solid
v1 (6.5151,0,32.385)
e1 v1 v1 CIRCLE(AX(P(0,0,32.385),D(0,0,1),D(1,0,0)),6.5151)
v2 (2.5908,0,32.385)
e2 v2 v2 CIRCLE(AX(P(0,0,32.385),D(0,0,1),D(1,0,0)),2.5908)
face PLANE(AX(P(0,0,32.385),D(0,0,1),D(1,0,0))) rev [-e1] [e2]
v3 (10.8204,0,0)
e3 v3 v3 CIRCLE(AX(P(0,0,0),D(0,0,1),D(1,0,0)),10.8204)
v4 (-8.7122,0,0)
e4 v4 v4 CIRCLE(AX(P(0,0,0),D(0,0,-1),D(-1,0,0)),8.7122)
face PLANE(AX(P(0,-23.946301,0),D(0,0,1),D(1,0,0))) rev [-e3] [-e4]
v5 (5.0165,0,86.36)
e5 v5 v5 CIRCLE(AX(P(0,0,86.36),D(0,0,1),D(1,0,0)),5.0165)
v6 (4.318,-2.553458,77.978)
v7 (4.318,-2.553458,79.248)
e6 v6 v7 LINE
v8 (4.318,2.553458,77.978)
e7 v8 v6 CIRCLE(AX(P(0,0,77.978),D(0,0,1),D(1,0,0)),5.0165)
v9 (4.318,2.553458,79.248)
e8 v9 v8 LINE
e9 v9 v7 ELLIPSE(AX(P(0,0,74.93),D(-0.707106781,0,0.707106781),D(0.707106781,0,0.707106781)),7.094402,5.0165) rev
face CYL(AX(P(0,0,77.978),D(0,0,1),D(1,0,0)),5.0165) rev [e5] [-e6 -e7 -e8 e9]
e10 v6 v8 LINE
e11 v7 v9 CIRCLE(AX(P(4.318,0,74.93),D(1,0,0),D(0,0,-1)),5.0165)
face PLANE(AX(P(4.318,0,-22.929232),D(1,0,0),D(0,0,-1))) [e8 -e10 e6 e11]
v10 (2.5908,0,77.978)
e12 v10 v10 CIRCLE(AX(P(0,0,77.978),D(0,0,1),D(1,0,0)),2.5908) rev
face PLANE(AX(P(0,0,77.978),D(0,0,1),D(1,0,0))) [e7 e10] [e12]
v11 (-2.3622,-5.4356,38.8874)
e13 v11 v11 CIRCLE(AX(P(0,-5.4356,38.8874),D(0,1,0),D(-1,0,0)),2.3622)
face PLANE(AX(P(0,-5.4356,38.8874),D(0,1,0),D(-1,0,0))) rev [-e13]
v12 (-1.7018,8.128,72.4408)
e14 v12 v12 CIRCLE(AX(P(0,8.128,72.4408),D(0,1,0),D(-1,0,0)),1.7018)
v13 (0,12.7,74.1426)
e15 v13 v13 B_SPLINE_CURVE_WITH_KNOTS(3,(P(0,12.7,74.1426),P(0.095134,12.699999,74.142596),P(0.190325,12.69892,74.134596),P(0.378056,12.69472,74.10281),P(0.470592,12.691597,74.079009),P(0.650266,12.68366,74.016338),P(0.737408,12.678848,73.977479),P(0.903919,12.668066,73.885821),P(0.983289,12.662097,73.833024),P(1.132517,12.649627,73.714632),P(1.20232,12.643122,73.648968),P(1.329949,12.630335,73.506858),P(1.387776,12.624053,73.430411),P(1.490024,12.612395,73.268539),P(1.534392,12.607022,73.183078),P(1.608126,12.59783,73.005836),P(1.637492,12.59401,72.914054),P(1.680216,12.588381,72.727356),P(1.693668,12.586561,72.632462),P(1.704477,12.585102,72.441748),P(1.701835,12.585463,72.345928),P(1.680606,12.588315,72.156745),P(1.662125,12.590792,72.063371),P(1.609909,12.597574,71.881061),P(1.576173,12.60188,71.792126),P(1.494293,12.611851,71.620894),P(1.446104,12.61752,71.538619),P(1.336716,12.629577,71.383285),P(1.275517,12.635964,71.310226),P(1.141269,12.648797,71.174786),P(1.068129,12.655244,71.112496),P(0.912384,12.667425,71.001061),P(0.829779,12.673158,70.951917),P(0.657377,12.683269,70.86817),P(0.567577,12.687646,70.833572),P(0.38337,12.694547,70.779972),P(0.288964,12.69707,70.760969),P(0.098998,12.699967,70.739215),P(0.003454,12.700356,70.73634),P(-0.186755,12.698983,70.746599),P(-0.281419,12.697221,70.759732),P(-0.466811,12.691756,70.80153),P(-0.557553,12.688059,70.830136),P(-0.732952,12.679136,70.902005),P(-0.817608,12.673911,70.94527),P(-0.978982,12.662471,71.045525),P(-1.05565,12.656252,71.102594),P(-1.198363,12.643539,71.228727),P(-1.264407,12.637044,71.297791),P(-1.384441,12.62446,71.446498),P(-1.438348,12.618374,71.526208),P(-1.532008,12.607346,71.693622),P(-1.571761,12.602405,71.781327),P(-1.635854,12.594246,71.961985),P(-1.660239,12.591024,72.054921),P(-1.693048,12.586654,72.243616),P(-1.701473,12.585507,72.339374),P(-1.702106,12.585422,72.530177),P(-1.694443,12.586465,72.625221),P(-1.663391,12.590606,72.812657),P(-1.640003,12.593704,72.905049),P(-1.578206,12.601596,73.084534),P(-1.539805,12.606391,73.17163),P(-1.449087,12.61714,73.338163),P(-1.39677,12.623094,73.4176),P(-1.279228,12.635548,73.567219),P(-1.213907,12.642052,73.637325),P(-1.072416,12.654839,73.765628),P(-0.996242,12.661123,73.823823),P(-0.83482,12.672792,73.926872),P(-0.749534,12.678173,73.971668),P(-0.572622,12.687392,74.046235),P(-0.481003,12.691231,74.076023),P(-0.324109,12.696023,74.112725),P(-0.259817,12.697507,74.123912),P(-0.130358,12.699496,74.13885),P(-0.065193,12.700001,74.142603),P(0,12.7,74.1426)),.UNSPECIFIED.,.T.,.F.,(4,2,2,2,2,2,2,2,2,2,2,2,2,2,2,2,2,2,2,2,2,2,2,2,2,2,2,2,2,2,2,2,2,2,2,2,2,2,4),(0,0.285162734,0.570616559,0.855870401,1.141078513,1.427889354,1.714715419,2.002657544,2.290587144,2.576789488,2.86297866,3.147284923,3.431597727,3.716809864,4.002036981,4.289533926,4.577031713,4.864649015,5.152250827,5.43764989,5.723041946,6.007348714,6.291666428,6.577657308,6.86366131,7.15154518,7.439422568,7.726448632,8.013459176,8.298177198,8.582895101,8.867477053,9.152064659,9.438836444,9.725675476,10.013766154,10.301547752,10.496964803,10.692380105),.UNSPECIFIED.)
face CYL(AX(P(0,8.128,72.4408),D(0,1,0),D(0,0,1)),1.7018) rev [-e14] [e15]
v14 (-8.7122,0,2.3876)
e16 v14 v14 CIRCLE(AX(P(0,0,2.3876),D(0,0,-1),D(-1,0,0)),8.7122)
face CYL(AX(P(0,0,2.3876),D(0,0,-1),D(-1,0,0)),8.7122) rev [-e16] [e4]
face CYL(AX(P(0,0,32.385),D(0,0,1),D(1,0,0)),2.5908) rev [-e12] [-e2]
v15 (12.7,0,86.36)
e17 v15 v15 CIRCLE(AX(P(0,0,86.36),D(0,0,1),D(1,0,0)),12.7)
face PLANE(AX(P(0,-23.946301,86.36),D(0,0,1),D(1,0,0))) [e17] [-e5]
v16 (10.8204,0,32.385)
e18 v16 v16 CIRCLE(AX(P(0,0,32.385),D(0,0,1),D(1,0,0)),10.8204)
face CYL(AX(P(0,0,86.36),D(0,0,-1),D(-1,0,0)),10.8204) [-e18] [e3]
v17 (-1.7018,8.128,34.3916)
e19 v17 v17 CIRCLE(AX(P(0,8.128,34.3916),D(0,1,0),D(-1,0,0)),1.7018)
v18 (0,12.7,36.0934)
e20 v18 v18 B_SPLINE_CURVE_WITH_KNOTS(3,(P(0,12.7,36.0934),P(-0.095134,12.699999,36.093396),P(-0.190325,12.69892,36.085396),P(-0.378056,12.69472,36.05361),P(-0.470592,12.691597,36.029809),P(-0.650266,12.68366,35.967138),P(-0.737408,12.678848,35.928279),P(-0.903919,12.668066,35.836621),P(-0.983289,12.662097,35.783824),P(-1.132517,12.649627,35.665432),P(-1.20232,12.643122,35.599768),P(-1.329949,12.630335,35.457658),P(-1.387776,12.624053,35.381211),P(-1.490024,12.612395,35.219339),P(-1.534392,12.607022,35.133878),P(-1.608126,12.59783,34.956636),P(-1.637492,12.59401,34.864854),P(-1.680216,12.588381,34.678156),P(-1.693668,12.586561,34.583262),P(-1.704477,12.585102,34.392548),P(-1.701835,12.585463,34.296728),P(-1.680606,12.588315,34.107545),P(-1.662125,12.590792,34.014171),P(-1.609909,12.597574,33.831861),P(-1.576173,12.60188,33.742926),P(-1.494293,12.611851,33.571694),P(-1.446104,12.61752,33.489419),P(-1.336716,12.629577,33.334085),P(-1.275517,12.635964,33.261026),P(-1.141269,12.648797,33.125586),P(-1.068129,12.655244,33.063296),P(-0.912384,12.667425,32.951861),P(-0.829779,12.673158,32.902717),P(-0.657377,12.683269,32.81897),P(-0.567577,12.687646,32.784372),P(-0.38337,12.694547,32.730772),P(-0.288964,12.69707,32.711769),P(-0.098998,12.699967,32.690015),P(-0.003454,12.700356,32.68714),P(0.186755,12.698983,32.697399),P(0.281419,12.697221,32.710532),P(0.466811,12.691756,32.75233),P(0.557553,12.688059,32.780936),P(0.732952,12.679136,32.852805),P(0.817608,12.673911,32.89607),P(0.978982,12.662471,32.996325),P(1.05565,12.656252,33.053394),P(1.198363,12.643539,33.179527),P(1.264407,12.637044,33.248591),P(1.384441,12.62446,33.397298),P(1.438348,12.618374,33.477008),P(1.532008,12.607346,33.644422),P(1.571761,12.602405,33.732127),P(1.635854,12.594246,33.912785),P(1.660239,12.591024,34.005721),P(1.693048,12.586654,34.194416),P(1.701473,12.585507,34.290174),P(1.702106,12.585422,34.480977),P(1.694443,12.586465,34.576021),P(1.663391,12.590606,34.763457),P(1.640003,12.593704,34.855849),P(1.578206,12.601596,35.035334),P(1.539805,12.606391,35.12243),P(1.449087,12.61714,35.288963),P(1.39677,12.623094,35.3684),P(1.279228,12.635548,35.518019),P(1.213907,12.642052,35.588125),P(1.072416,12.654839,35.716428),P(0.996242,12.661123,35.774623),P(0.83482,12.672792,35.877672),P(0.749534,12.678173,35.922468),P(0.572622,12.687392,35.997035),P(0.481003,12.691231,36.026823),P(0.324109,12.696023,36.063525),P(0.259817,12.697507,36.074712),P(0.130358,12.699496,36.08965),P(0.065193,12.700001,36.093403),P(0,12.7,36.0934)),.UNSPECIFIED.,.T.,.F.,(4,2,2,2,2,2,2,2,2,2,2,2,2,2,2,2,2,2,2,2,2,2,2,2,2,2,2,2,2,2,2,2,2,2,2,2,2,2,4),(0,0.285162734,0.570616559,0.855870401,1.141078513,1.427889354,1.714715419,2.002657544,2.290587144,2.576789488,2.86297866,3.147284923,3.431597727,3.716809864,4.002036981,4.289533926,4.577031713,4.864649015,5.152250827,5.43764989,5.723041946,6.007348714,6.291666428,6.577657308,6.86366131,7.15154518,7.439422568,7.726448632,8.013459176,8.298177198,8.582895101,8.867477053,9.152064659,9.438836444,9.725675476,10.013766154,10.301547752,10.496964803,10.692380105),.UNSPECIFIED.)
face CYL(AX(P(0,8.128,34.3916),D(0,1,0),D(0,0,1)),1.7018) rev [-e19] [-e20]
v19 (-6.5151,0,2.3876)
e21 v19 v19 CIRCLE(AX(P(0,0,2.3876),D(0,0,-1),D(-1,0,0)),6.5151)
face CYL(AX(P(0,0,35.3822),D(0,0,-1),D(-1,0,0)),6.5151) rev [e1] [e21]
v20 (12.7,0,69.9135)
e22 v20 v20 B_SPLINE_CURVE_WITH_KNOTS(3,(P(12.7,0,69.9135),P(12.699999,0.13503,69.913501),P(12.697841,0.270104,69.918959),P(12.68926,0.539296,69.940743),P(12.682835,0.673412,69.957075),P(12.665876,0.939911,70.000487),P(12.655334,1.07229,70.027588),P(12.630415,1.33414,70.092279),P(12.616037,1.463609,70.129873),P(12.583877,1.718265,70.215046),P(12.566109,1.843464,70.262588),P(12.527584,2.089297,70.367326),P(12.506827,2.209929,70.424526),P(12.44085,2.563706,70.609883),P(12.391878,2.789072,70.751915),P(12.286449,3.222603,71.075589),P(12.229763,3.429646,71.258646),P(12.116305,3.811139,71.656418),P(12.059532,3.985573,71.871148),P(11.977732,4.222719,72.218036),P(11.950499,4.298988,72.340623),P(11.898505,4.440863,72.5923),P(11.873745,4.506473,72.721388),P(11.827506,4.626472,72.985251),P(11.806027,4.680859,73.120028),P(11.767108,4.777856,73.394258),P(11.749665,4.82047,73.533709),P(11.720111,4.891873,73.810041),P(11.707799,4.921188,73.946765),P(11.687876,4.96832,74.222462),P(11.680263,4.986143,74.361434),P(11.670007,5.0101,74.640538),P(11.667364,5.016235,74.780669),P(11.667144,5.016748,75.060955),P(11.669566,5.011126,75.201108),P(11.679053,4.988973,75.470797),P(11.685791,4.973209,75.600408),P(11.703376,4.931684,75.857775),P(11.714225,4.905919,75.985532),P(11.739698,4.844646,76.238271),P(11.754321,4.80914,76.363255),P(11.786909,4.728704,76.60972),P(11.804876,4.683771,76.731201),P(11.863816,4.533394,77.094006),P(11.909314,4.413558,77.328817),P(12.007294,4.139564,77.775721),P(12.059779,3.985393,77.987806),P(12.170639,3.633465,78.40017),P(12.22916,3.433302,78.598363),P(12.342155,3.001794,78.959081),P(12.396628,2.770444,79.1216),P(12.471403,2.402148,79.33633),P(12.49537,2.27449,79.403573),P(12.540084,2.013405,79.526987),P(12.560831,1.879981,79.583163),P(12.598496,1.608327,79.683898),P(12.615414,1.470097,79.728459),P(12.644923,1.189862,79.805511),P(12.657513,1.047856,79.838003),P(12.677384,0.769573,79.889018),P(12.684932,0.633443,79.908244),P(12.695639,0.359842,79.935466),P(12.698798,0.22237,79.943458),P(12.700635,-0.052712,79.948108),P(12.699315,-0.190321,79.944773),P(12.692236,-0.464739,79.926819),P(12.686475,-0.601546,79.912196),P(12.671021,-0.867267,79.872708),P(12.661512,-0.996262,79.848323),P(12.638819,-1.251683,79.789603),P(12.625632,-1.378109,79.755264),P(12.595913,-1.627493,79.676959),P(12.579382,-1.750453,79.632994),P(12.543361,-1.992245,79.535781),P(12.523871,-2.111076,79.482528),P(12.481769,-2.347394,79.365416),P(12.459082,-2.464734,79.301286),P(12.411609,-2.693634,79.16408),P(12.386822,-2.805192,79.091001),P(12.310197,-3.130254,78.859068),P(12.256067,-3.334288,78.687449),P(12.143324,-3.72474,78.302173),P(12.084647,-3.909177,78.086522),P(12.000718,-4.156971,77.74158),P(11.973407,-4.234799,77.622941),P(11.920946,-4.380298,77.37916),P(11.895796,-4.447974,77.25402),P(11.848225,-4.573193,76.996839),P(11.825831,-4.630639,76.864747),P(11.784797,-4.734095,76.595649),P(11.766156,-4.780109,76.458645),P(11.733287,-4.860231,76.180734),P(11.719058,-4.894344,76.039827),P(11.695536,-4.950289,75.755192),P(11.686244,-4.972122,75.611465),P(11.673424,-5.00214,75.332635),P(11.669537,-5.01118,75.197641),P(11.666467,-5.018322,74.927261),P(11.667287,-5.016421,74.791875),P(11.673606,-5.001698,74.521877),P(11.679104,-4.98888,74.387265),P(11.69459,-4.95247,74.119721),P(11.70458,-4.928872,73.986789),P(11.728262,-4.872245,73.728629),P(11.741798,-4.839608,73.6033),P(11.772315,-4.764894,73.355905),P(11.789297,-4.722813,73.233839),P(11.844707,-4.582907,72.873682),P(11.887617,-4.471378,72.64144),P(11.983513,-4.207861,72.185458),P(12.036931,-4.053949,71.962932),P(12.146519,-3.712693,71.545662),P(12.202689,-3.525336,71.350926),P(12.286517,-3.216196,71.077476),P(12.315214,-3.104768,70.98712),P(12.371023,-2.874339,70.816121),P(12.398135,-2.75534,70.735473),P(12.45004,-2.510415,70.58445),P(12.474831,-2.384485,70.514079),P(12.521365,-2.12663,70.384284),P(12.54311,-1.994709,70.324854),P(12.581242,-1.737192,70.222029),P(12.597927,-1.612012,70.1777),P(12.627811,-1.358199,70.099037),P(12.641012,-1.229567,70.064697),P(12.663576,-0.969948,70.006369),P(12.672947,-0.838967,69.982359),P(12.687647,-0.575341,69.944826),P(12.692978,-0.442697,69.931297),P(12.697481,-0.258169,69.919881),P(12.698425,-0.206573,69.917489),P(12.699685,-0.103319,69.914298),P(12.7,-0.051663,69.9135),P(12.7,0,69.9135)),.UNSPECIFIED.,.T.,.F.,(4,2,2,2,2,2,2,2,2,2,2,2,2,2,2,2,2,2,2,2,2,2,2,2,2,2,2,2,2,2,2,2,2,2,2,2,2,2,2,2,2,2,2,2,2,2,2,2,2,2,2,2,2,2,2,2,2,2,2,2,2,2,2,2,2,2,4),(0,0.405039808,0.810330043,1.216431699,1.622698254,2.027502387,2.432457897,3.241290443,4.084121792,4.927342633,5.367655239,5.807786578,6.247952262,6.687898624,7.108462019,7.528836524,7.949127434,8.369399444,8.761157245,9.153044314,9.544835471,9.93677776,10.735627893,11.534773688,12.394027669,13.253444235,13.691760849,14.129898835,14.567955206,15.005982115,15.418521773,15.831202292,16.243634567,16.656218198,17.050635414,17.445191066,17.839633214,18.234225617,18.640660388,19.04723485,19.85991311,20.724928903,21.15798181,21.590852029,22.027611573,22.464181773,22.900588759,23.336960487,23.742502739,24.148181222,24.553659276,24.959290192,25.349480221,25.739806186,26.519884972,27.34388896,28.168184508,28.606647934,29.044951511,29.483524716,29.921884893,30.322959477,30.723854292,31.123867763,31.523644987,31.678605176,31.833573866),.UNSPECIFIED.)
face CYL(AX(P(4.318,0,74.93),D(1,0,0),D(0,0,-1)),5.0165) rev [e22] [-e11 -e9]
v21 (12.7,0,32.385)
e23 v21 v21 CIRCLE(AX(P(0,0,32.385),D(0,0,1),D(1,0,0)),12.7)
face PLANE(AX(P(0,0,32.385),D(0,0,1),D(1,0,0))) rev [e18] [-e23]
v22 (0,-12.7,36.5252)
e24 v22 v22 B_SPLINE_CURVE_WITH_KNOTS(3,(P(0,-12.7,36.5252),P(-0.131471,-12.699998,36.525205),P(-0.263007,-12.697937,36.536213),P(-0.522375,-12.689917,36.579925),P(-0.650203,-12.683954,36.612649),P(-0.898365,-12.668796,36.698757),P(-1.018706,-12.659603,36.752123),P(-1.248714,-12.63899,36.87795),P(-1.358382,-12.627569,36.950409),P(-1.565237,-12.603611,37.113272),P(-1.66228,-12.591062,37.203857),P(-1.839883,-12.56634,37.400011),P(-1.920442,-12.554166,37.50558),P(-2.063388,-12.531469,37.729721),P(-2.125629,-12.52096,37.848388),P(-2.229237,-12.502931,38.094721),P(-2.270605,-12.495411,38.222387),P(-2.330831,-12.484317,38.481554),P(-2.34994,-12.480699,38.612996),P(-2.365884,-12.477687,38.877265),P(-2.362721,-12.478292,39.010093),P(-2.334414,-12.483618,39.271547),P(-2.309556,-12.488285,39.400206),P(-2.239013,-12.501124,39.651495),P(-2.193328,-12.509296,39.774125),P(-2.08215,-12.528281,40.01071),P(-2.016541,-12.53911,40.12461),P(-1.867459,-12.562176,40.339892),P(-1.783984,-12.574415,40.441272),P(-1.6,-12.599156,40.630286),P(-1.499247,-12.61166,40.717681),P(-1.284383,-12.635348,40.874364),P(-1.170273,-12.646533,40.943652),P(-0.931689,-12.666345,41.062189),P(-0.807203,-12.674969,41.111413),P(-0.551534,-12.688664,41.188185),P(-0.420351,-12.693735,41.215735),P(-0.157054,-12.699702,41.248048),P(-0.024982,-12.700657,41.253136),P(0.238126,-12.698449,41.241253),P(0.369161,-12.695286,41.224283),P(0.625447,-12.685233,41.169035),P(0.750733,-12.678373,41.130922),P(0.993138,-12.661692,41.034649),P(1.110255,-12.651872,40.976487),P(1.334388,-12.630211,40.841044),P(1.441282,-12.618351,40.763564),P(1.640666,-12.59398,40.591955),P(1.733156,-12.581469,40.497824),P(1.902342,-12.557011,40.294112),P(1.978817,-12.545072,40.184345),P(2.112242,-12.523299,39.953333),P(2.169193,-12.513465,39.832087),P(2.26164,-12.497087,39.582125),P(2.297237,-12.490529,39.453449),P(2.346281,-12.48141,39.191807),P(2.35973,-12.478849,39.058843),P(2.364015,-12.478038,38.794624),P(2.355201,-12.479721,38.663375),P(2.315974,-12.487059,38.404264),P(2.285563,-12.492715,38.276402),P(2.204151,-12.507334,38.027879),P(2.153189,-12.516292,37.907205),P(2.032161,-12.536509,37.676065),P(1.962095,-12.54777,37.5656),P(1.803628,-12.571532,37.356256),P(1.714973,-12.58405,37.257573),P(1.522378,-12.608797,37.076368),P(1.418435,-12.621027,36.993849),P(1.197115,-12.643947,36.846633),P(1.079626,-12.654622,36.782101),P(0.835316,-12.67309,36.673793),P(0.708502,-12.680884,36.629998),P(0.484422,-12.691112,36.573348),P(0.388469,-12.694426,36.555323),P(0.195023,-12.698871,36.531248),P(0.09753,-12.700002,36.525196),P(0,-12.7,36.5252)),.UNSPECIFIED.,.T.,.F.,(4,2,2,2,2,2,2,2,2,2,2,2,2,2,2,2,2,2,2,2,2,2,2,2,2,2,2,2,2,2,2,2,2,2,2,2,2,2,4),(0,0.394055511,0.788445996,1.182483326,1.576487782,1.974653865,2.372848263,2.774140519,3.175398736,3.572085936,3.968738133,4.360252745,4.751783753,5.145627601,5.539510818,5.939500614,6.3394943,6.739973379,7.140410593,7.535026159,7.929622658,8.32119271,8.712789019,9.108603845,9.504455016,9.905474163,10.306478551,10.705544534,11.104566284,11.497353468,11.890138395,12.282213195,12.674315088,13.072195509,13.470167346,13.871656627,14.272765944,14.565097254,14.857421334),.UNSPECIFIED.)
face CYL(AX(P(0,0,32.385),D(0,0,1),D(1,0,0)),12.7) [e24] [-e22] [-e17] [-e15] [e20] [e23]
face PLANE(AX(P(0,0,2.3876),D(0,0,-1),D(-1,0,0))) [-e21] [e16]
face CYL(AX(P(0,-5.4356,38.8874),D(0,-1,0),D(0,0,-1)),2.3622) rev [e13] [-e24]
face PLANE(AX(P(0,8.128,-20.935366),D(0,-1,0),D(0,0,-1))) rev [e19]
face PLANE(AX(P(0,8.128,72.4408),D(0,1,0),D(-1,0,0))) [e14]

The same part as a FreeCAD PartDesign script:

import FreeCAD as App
import Part
import Sketcher
from FreeCAD import Vector
Q = App.Units.Quantity

doc = App.newDocument("Part")
params = doc.addObject("Spreadsheet::Sheet", "Params")
for row, (alias, value) in enumerate([
    ("sketch1_diameter", "0.852 in"),
    ("sketch1_diameter2", "0.686 in"),
    ("pad1_length", "3.4 in"),
    ("sketch2_diameter", "1 in"),
    ("sketch2_diameter2", "0.204 in"),
    ("pad2_length", "2.125 in"),
    ("sketch3_diameter", "0.686 in"),
    ("sketch3_diameter2", "0.513 in"),
    ("pad3_length", "1.393 in"),
    ("sketch4_diameter", "0.686 in"),
    ("sketch4_diameter2", "0.513 in"),
    ("pocket1_length", "0.094 in"),
    ("sketch5_diameter", "0.186 in"),
    ("pocket2_length", "0.286 in"),
    ("sketch6_diameter", "0.134 in"),
    ("pocket3_length", "0.18 in"),
    ("sketch7_diameter", "0.395 in"),
    ("pocket4_length", "0.33 in"),
    ("sketch8_diameter", "0.395 in"),
    ("pocket5_length", "0.33 in"),
], start=1):
    params.set(f"A{row}", alias)
    params.set(f"B{row}", "=" + value)
    params.setAlias(f"B{row}", alias)

body = doc.addObject("PartDesign::Body", "Body")

# Sketch on XY plane
sketch1 = doc.addObject("Sketcher::SketchObject", "Sketch")
body.addObject(sketch1)
sketch1.AttachmentSupport = (doc.XY_Plane, [""])
sketch1.MapMode = "FlatFace"
sketch1.addGeometry([
    Part.Circle(Vector(0, 0, 0), Vector(0, 0, 1), 11),
    Part.Circle(Vector(0, 0, 0), Vector(0, 0, 1), 9),
], False)
sketch1.addConstraint([
    Sketcher.Constraint("Coincident", 0, 3, -1, 1),
    Sketcher.Constraint("Coincident", 1, 3, -1, 1),
    Sketcher.Constraint("Diameter", 0, Q("0.852 in")),
    Sketcher.Constraint("Diameter", 1, Q("0.686 in")),
])
sketch1.setExpression("Constraints[2]", "Params.sketch1_diameter")
sketch1.setExpression("Constraints[3]", "Params.sketch1_diameter2")
pad1 = doc.addObject("PartDesign::Pad", "Pad")
body.addObject(pad1)
pad1.Profile = sketch1
pad1.setExpression("Length", "Params.pad1_length")

# Sketch on XY plane
sketch2 = doc.addObject("Sketcher::SketchObject", "Sketch001")
body.addObject(sketch2)
sketch2.AttachmentSupport = (doc.XY_Plane, [""])
sketch2.MapMode = "FlatFace"
sketch2.AttachmentOffset = App.Placement(Vector(0, 0, 3.4 * 25.4), App.Rotation())
sketch2.addGeometry([
    Part.Circle(Vector(0, 0, 0), Vector(0, 0, 1), 12.7),
    Part.Circle(Vector(0, 0, 0), Vector(0, 0, 1), 2.6),
], False)
sketch2.addConstraint([
    Sketcher.Constraint("Coincident", 0, 3, -1, 1),
    Sketcher.Constraint("Coincident", 1, 3, -1, 1),
    Sketcher.Constraint("Diameter", 0, Q("1 in")),
    Sketcher.Constraint("Diameter", 1, Q("0.204 in")),
])
sketch2.setExpression("Constraints[2]", "Params.sketch2_diameter")
sketch2.setExpression("Constraints[3]", "Params.sketch2_diameter2")
pad2 = doc.addObject("PartDesign::Pad", "Pad001")
body.addObject(pad2)
pad2.Profile = sketch2
pad2.setExpression("Length", "Params.pad2_length")
pad2.Reversed = True

# Sketch on XY plane
sketch3 = doc.addObject("Sketcher::SketchObject", "Sketch002")
body.addObject(sketch3)
sketch3.AttachmentSupport = (doc.XY_Plane, [""])
sketch3.MapMode = "FlatFace"
sketch3.addGeometry([
    Part.Circle(Vector(0, 0, 0), Vector(0, 0, 1), 9),
    Part.Circle(Vector(0, 0, 0), Vector(0, 0, 1), 7),
], False)
sketch3.addConstraint([
    Sketcher.Constraint("Coincident", 0, 3, -1, 1),
    Sketcher.Constraint("Coincident", 1, 3, -1, 1),
    Sketcher.Constraint("Diameter", 0, Q("0.686 in")),
    Sketcher.Constraint("Diameter", 1, Q("0.513 in")),
])
sketch3.setExpression("Constraints[2]", "Params.sketch3_diameter")
sketch3.setExpression("Constraints[3]", "Params.sketch3_diameter2")
pad3 = doc.addObject("PartDesign::Pad", "Pad002")
body.addObject(pad3)
pad3.Profile = sketch3
pad3.setExpression("Length", "Params.pad3_length")

# Sketch on XY plane
sketch4 = doc.addObject("Sketcher::SketchObject", "Sketch003")
body.addObject(sketch4)
sketch4.AttachmentSupport = (doc.XY_Plane, [""])
sketch4.MapMode = "FlatFace"
sketch4.addGeometry([
    Part.Circle(Vector(0, 0, 0), Vector(0, 0, 1), 9),
    Part.Circle(Vector(0, 0, 0), Vector(0, 0, 1), 7),
], False)
sketch4.addConstraint([
    Sketcher.Constraint("Coincident", 0, 3, -1, 1),
    Sketcher.Constraint("Coincident", 1, 3, -1, 1),
    Sketcher.Constraint("Diameter", 0, Q("0.686 in")),
    Sketcher.Constraint("Diameter", 1, Q("0.513 in")),
])
sketch4.setExpression("Constraints[2]", "Params.sketch4_diameter")
sketch4.setExpression("Constraints[3]", "Params.sketch4_diameter2")
pocket1 = doc.addObject("PartDesign::Pocket", "Pocket")
body.addObject(pocket1)
pocket1.Profile = sketch4
pocket1.setExpression("Length", "Params.pocket1_length")
pocket1.Reversed = True

# Sketch on XZ plane
sketch5 = doc.addObject("Sketcher::SketchObject", "Sketch004")
body.addObject(sketch5)
sketch5.AttachmentSupport = (doc.XZ_Plane, [""])
sketch5.MapMode = "FlatFace"
sketch5.AttachmentOffset = App.Placement(Vector(0, 0, 0.5 * 25.4), App.Rotation())
sketch5.addGeometry(Part.Circle(Vector(0, 38.9, 0), Vector(0, 0, 1), 2.4), False)
sketch5.addConstraint([
    Sketcher.Constraint("PointOnObject", 0, 3, -2),
    Sketcher.Constraint("Diameter", 0, Q("0.186 in")),
    Sketcher.Constraint("DistanceY", -1, 1, 0, 3, Q("1.531 in")),
])
sketch5.setExpression("Constraints[1]", "Params.sketch5_diameter")
pocket2 = doc.addObject("PartDesign::Pocket", "Pocket001")
body.addObject(pocket2)
pocket2.Profile = sketch5
pocket2.setExpression("Length", "Params.pocket2_length")

# Sketch on XZ plane
sketch6 = doc.addObject("Sketcher::SketchObject", "Sketch005")
body.addObject(sketch6)
sketch6.AttachmentSupport = (doc.XZ_Plane, [""])
sketch6.MapMode = "FlatFace"
sketch6.AttachmentOffset = App.Placement(Vector(0, 0, -0.5 * 25.4), App.Rotation())
sketch6.addGeometry([
    Part.Circle(Vector(0, 34.4, 0), Vector(0, 0, 1), 1.7),
    Part.Circle(Vector(0, 72.4, 0), Vector(0, 0, 1), 1.7),
], False)
sketch6.addConstraint([
    Sketcher.Constraint("Equal", 0, 1),
    Sketcher.Constraint("PointOnObject", 0, 3, -2),
    Sketcher.Constraint("PointOnObject", 1, 3, -2),
    Sketcher.Constraint("Diameter", 0, Q("0.134 in")),
    Sketcher.Constraint("DistanceY", -1, 1, 0, 3, Q("1.354 in")),
    Sketcher.Constraint("DistanceY", -1, 1, 1, 3, Q("2.852 in")),
])
sketch6.setExpression("Constraints[3]", "Params.sketch6_diameter")
pocket3 = doc.addObject("PartDesign::Pocket", "Pocket002")
body.addObject(pocket3)
pocket3.Profile = sketch6
pocket3.setExpression("Length", "Params.pocket3_length")
pocket3.Reversed = True

# Sketch on XY plane
sketch7 = doc.addObject("Sketcher::SketchObject", "Sketch006")
body.addObject(sketch7)
sketch7.AttachmentSupport = (doc.XY_Plane, [""])
sketch7.MapMode = "FlatFace"
sketch7.AttachmentOffset = App.Placement(Vector(0, 0, 3.4 * 25.4), App.Rotation())
sketch7.addGeometry(Part.Circle(Vector(0, 0, 0), Vector(0, 0, 1), 5), False)
sketch7.addConstraint([
    Sketcher.Constraint("Coincident", 0, 3, -1, 1),
    Sketcher.Constraint("Diameter", 0, Q("0.395 in")),
])
sketch7.setExpression("Constraints[1]", "Params.sketch7_diameter")
pocket4 = doc.addObject("PartDesign::Pocket", "Pocket003")
body.addObject(pocket4)
pocket4.Profile = sketch7
pocket4.setExpression("Length", "Params.pocket4_length")

# Sketch on YZ plane
sketch8 = doc.addObject("Sketcher::SketchObject", "Sketch007")
body.addObject(sketch8)
sketch8.AttachmentSupport = (doc.YZ_Plane, [""])
sketch8.MapMode = "FlatFace"
sketch8.AttachmentOffset = App.Placement(Vector(0, 0, 0.5 * 25.4), App.Rotation())
sketch8.addGeometry(Part.Circle(Vector(0, 75, 0), Vector(0, 0, 1), 5), False)
sketch8.addConstraint([
    Sketcher.Constraint("PointOnObject", 0, 3, -2),
    Sketcher.Constraint("Diameter", 0, Q("0.395 in")),
    Sketcher.Constraint("DistanceY", -1, 1, 0, 3, Q("2.95 in")),
])
sketch8.setExpression("Constraints[1]", "Params.sketch8_diameter")
pocket5 = doc.addObject("PartDesign::Pocket", "Pocket004")
body.addObject(pocket5)
pocket5.Profile = sketch8
pocket5.setExpression("Length", "Params.pocket5_length")

doc.recompute()
